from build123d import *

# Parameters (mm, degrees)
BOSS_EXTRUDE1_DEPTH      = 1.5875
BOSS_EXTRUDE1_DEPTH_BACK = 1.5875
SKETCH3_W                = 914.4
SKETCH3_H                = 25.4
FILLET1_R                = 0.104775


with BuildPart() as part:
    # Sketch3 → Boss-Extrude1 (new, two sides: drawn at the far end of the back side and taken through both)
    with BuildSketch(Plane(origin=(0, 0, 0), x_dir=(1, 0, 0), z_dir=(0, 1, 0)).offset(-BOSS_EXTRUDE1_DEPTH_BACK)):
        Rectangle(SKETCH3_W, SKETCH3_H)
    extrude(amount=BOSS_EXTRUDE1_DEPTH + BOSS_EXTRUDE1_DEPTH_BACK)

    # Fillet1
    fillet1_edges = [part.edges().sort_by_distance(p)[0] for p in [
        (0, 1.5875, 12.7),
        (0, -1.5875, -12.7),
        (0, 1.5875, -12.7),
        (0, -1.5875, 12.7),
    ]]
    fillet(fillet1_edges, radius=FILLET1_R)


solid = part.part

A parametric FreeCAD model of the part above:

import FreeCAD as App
import Part
import Sketcher

V = App.Vector
Q = App.Units.Quantity


def edges_at(feature, points):
    """Names of the edges that pass closest to the given points."""
    edges = feature.Shape.Edges
    near = lambda p: min(range(len(edges)), key=lambda i: edges[i].distToShape(Part.Vertex(*p))[0])
    return sorted({f"Edge{near(p) + 1}" for p in points})

doc = App.newDocument("Part")
body = doc.addObject("PartDesign::Body", "Body")

# Sketch on XZ plane
sketch1 = body.newObject("Sketcher::SketchObject", "Sketch")
sketch1.AttachmentSupport = (doc.getObject("XZ_Plane"), [""])
sketch1.MapMode = "FlatFace"
sketch1.addGeometry(Part.LineSegment(V(-457, -13, 0), V(-457, 13, 0)), False)
sketch1.addGeometry(Part.LineSegment(V(-457, 13, 0), V(457, 13, 0)), False)
sketch1.addGeometry(Part.LineSegment(V(457, 13, 0), V(457, -13, 0)), False)
sketch1.addGeometry(Part.LineSegment(V(457, -13, 0), V(-457, -13, 0)), False)
sketch1.addConstraint(Sketcher.Constraint("Coincident", 0, 2, 1, 1))
sketch1.addConstraint(Sketcher.Constraint("Coincident", 1, 2, 2, 1))
sketch1.addConstraint(Sketcher.Constraint("Coincident", 2, 2, 3, 1))
sketch1.addConstraint(Sketcher.Constraint("Coincident", 3, 2, 0, 1))
sketch1.addConstraint(Sketcher.Constraint("Vertical", 0))
sketch1.addConstraint(Sketcher.Constraint("Horizontal", 1))
sketch1.addConstraint(Sketcher.Constraint("Vertical", 2))
sketch1.addConstraint(Sketcher.Constraint("Horizontal", 3))
sketch1.addConstraint(Sketcher.Constraint("Symmetric", 0, 2, 2, 2, -1, 1))
sketch1.addConstraint(Sketcher.Constraint("DistanceX", 1, 1, 1, 2, Q("36 in")))
sketch1.addConstraint(Sketcher.Constraint("DistanceY", 0, 1, 0, 2, Q("1 in")))
pad1 = body.newObject("PartDesign::Pad", "Pad")
pad1.Profile = sketch1
pad1.Type = "TwoLengths"
pad1.Length = Q("0.0625 in")
pad1.Length2 = Q("0.0625 in")
pad1.Reversed = True
doc.recompute()

fillet = body.newObject("PartDesign::Fillet", "Fillet")
fillet.Base = (pad1, edges_at(pad1, [
    (0, 1.587, 12.7),
    (0, -1.587, -12.7),
    (0, 1.587, -12.7),
    (0, -1.587, 12.7),
]))
fillet.Radius = 0.104775

doc.recompute()
